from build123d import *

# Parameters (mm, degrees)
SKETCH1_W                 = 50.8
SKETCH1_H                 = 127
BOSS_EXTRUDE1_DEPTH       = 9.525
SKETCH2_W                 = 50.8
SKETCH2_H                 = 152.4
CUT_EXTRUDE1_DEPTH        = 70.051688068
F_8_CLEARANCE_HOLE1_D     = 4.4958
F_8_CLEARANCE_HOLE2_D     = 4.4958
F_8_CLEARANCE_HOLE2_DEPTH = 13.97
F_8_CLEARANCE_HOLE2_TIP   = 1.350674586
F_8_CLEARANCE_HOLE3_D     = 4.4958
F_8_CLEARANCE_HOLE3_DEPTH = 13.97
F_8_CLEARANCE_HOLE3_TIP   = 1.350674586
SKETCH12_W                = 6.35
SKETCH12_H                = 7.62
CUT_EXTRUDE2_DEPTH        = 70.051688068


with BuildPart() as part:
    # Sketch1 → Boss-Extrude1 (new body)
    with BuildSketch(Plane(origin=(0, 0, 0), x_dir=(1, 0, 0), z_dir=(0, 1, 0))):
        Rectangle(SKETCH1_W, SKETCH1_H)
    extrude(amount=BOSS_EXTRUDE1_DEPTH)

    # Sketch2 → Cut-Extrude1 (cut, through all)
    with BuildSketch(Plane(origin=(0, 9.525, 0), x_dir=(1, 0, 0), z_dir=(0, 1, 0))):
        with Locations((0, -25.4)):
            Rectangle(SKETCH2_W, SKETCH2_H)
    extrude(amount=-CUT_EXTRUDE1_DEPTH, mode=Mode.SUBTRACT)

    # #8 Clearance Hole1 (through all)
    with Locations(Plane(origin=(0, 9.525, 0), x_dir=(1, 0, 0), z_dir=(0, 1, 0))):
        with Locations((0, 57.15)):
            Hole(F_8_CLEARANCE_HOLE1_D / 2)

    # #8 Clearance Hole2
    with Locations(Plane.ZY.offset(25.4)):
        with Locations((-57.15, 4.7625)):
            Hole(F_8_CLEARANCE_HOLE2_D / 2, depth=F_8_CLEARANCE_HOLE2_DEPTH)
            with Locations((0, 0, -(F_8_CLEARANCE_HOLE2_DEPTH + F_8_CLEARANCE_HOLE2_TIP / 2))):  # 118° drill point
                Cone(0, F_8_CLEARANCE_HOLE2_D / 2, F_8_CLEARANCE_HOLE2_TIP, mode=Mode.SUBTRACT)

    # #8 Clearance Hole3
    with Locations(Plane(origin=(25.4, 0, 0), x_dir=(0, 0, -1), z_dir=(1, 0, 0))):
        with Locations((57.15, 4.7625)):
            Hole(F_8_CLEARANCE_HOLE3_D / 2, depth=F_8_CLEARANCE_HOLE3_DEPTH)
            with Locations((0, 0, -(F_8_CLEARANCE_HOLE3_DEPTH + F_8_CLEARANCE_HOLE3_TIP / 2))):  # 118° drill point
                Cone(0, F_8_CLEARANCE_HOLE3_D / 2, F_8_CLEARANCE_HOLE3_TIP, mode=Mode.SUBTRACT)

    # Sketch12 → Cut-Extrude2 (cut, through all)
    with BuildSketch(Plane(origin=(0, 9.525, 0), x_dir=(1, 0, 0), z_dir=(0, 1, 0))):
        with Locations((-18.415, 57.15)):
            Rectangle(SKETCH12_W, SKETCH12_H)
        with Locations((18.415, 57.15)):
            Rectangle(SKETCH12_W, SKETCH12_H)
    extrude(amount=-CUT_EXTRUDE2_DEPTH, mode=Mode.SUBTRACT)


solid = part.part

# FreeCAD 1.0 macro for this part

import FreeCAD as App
import Part
import Sketcher
Q = App.Units.Quantity

doc = App.newDocument("Part")
body = doc.addObject("PartDesign::Body", "Body")

# Sketch on XZ plane
sketch1 = body.newObject("Sketcher::SketchObject", "Sketch")
sketch1.AttachmentSupport = (doc.getObject("XZ_Plane"), [""])
sketch1.MapMode = "FlatFace"
sketch1.addGeometry([
    Part.LineSegment(App.Vector(-25.4, -63.5, 0), App.Vector(-25.4, 63.5, 0)),
    Part.LineSegment(App.Vector(-25.4, 63.5, 0), App.Vector(25.4, 63.5, 0)),
    Part.LineSegment(App.Vector(25.4, 63.5, 0), App.Vector(25.4, -63.5, 0)),
    Part.LineSegment(App.Vector(25.4, -63.5, 0), App.Vector(-25.4, -63.5, 0)),
], False)
sketch1.addConstraint([
    Sketcher.Constraint("Coincident", 0, 2, 1, 1),
    Sketcher.Constraint("Coincident", 1, 2, 2, 1),
    Sketcher.Constraint("Coincident", 2, 2, 3, 1),
    Sketcher.Constraint("Coincident", 3, 2, 0, 1),
    Sketcher.Constraint("Vertical", 0),
    Sketcher.Constraint("Horizontal", 1),
    Sketcher.Constraint("Vertical", 2),
    Sketcher.Constraint("Horizontal", 3),
    Sketcher.Constraint("Symmetric", 0, 2, 2, 2, -1, 1),
    Sketcher.Constraint("DistanceX", 1, 1, 1, 2, Q("2 in")),
    Sketcher.Constraint("DistanceY", 0, 1, 0, 2, Q("5 in")),
])
pad1 = body.newObject("PartDesign::Pad", "Pad")
pad1.Profile = sketch1
pad1.Length = Q("0.375 in")
pad1.Reversed = True

# Sketch on XZ plane
sketch2 = body.newObject("Sketcher::SketchObject", "Sketch001")
sketch2.AttachmentSupport = (doc.getObject("XZ_Plane"), [""])
sketch2.MapMode = "FlatFace"
sketch2.AttachmentOffset = App.Placement(App.Vector(0, 0, -0.375 * 25.4), App.Rotation())
sketch2.addGeometry([
    Part.LineSegment(App.Vector(-25.4, -50.8, 0), App.Vector(-25.4, 101.6, 0)),
    Part.LineSegment(App.Vector(-25.4, 101.6, 0), App.Vector(25.4, 101.6, 0)),
    Part.LineSegment(App.Vector(25.4, 101.6, 0), App.Vector(25.4, -50.8, 0)),
    Part.LineSegment(App.Vector(25.4, -50.8, 0), App.Vector(-25.4, -50.8, 0)),
], False)
sketch2.addConstraint([
    Sketcher.Constraint("Coincident", 0, 2, 1, 1),
    Sketcher.Constraint("Coincident", 1, 2, 2, 1),
    Sketcher.Constraint("Coincident", 2, 2, 3, 1),
    Sketcher.Constraint("Coincident", 3, 2, 0, 1),
    Sketcher.Constraint("Vertical", 0),
    Sketcher.Constraint("Horizontal", 1),
    Sketcher.Constraint("Vertical", 2),
    Sketcher.Constraint("Horizontal", 3),
    Sketcher.Constraint("DistanceX", 1, 1, 1, 2, Q("2 in")),
    Sketcher.Constraint("DistanceY", 0, 1, 0, 2, Q("6 in")),
    Sketcher.Constraint("DistanceX", 0, 2, -1, 1, Q("1 in")),
    Sketcher.Constraint("DistanceY", -1, 1, 0, 2, Q("4 in")),
])
pocket1 = body.newObject("PartDesign::Pocket", "Pocket")
pocket1.Profile = sketch2
pocket1.Type = "ThroughAll"
pocket1.Reversed = True

# Sketch on XZ plane
sketch3 = body.newObject("Sketcher::SketchObject", "Sketch002")
sketch3.AttachmentSupport = (doc.getObject("XZ_Plane"), [""])
sketch3.MapMode = "FlatFace"
sketch3.AttachmentOffset = App.Placement(App.Vector(0, 0, -0.375 * 25.4), App.Rotation())
sketch3.addGeometry(Part.Circle(App.Vector(0, -57.15, 0), App.Vector(0, 0, 1), 2.2479), False)
sketch3.addConstraint([
    Sketcher.Constraint("PointOnObject", 0, 3, -2),
    Sketcher.Constraint("Diameter", 0, Q("0.177 in")),
    Sketcher.Constraint("DistanceY", 0, 3, -1, 1, Q("2.25 in")),
])
doc.recompute()
hole = body.newObject("PartDesign::Hole", "Hole")
hole.Profile = sketch3
hole.ThreadType = "None"
hole.Diameter = Q("0.177 in")
hole.DepthType = "ThroughAll"
hole.Reversed = True

# Sketch on YZ plane
sketch4 = body.newObject("Sketcher::SketchObject", "Sketch003")
sketch4.AttachmentSupport = (doc.getObject("YZ_Plane"), [""])
sketch4.MapMode = "FlatFace"
sketch4.AttachmentOffset = App.Placement(App.Vector(0, 0, -1 * 25.4), App.Rotation())
sketch4.addGeometry(Part.Circle(App.Vector(4.7625, -57.15, 0), App.Vector(0, 0, 1), 2.2479), False)
sketch4.addConstraint([
    Sketcher.Constraint("Diameter", 0, Q("0.177 in")),
    Sketcher.Constraint("DistanceY", 0, 3, -1, 1, Q("2.25 in")),
    Sketcher.Constraint("DistanceX", -1, 1, 0, 3, Q("0.1875 in")),
])
doc.recompute()
hole2 = body.newObject("PartDesign::Hole", "Hole001")
hole2.Profile = sketch4
hole2.ThreadType = "None"
hole2.Diameter = Q("0.177 in")
hole2.DepthType = "Dimension"
hole2.Depth = Q("0.55 in")
hole2.DrillPoint = "Angled"
hole2.DrillPointAngle = 118
hole2.Reversed = True

# Sketch on YZ plane
sketch5 = body.newObject("Sketcher::SketchObject", "Sketch004")
sketch5.AttachmentSupport = (doc.getObject("YZ_Plane"), [""])
sketch5.MapMode = "FlatFace"
sketch5.AttachmentOffset = App.Placement(App.Vector(0, 0, 1 * 25.4), App.Rotation())
sketch5.addGeometry(Part.Circle(App.Vector(4.7625, -57.15, 0), App.Vector(0, 0, 1), 2.2479), False)
sketch5.addConstraint([
    Sketcher.Constraint("Diameter", 0, Q("0.177 in")),
    Sketcher.Constraint("DistanceY", 0, 3, -1, 1, Q("2.25 in")),
    Sketcher.Constraint("DistanceX", -1, 1, 0, 3, Q("0.1875 in")),
])
doc.recompute()
hole3 = body.newObject("PartDesign::Hole", "Hole002")
hole3.Profile = sketch5
hole3.ThreadType = "None"
hole3.Diameter = Q("0.177 in")
hole3.DepthType = "Dimension"
hole3.Depth = Q("0.55 in")
hole3.DrillPoint = "Angled"
hole3.DrillPointAngle = 118

# Sketch on XZ plane
sketch6 = body.newObject("Sketcher::SketchObject", "Sketch005")
sketch6.AttachmentSupport = (doc.getObject("XZ_Plane"), [""])
sketch6.MapMode = "FlatFace"
sketch6.AttachmentOffset = App.Placement(App.Vector(0, 0, -0.375 * 25.4), App.Rotation())
sketch6.addGeometry([
    Part.LineSegment(App.Vector(-21.59, -60.96, 0), App.Vector(-21.59, -53.34, 0)),  # 0
    Part.LineSegment(App.Vector(-21.59, -53.34, 0), App.Vector(-15.24, -53.34, 0)),  # 1
    Part.LineSegment(App.Vector(-15.24, -53.34, 0), App.Vector(-15.24, -60.96, 0)),  # 2
    Part.LineSegment(App.Vector(-15.24, -60.96, 0), App.Vector(-21.59, -60.96, 0)),  # 3
    Part.LineSegment(App.Vector(15.24, -60.96, 0), App.Vector(15.24, -53.34, 0)),  # 4
    Part.LineSegment(App.Vector(15.24, -53.34, 0), App.Vector(21.59, -53.34, 0)),  # 5
    Part.LineSegment(App.Vector(21.59, -53.34, 0), App.Vector(21.59, -60.96, 0)),  # 6
    Part.LineSegment(App.Vector(21.59, -60.96, 0), App.Vector(15.24, -60.96, 0)),  # 7
], False)
sketch6.addConstraint([
    Sketcher.Constraint("Coincident", 0, 2, 1, 1),
    Sketcher.Constraint("Coincident", 1, 2, 2, 1),
    Sketcher.Constraint("Coincident", 2, 2, 3, 1),
    Sketcher.Constraint("Coincident", 3, 2, 0, 1),
    Sketcher.Constraint("Coincident", 4, 2, 5, 1),
    Sketcher.Constraint("Coincident", 5, 2, 6, 1),
    Sketcher.Constraint("Coincident", 6, 2, 7, 1),
    Sketcher.Constraint("Coincident", 7, 2, 4, 1),
    Sketcher.Constraint("Vertical", 0),
    Sketcher.Constraint("Horizontal", 1),
    Sketcher.Constraint("Vertical", 2),
    Sketcher.Constraint("Horizontal", 3),
    Sketcher.Constraint("Vertical", 4),
    Sketcher.Constraint("Horizontal", 5),
    Sketcher.Constraint("Vertical", 6),
    Sketcher.Constraint("Horizontal", 7),
    Sketcher.Constraint("Symmetric", 1, 2, 4, 2, -2),
    Sketcher.Constraint("Symmetric", 3, 2, 6, 2, -2),
    Sketcher.Constraint("DistanceY", 0, 1, 0, 2, Q("0.3 in")),
    Sketcher.Constraint("DistanceX", 1, 1, 1, 2, Q("0.25 in")),
    Sketcher.Constraint("DistanceY", 0, 2, -1, 1, Q("2.1 in")),
    Sketcher.Constraint("DistanceX", 1, 2, -1, 1, Q("0.6 in")),
])
pocket2 = body.newObject("PartDesign::Pocket", "Pocket001")
pocket2.Profile = sketch6
pocket2.Type = "ThroughAll"
pocket2.Reversed = True

doc.recompute()
